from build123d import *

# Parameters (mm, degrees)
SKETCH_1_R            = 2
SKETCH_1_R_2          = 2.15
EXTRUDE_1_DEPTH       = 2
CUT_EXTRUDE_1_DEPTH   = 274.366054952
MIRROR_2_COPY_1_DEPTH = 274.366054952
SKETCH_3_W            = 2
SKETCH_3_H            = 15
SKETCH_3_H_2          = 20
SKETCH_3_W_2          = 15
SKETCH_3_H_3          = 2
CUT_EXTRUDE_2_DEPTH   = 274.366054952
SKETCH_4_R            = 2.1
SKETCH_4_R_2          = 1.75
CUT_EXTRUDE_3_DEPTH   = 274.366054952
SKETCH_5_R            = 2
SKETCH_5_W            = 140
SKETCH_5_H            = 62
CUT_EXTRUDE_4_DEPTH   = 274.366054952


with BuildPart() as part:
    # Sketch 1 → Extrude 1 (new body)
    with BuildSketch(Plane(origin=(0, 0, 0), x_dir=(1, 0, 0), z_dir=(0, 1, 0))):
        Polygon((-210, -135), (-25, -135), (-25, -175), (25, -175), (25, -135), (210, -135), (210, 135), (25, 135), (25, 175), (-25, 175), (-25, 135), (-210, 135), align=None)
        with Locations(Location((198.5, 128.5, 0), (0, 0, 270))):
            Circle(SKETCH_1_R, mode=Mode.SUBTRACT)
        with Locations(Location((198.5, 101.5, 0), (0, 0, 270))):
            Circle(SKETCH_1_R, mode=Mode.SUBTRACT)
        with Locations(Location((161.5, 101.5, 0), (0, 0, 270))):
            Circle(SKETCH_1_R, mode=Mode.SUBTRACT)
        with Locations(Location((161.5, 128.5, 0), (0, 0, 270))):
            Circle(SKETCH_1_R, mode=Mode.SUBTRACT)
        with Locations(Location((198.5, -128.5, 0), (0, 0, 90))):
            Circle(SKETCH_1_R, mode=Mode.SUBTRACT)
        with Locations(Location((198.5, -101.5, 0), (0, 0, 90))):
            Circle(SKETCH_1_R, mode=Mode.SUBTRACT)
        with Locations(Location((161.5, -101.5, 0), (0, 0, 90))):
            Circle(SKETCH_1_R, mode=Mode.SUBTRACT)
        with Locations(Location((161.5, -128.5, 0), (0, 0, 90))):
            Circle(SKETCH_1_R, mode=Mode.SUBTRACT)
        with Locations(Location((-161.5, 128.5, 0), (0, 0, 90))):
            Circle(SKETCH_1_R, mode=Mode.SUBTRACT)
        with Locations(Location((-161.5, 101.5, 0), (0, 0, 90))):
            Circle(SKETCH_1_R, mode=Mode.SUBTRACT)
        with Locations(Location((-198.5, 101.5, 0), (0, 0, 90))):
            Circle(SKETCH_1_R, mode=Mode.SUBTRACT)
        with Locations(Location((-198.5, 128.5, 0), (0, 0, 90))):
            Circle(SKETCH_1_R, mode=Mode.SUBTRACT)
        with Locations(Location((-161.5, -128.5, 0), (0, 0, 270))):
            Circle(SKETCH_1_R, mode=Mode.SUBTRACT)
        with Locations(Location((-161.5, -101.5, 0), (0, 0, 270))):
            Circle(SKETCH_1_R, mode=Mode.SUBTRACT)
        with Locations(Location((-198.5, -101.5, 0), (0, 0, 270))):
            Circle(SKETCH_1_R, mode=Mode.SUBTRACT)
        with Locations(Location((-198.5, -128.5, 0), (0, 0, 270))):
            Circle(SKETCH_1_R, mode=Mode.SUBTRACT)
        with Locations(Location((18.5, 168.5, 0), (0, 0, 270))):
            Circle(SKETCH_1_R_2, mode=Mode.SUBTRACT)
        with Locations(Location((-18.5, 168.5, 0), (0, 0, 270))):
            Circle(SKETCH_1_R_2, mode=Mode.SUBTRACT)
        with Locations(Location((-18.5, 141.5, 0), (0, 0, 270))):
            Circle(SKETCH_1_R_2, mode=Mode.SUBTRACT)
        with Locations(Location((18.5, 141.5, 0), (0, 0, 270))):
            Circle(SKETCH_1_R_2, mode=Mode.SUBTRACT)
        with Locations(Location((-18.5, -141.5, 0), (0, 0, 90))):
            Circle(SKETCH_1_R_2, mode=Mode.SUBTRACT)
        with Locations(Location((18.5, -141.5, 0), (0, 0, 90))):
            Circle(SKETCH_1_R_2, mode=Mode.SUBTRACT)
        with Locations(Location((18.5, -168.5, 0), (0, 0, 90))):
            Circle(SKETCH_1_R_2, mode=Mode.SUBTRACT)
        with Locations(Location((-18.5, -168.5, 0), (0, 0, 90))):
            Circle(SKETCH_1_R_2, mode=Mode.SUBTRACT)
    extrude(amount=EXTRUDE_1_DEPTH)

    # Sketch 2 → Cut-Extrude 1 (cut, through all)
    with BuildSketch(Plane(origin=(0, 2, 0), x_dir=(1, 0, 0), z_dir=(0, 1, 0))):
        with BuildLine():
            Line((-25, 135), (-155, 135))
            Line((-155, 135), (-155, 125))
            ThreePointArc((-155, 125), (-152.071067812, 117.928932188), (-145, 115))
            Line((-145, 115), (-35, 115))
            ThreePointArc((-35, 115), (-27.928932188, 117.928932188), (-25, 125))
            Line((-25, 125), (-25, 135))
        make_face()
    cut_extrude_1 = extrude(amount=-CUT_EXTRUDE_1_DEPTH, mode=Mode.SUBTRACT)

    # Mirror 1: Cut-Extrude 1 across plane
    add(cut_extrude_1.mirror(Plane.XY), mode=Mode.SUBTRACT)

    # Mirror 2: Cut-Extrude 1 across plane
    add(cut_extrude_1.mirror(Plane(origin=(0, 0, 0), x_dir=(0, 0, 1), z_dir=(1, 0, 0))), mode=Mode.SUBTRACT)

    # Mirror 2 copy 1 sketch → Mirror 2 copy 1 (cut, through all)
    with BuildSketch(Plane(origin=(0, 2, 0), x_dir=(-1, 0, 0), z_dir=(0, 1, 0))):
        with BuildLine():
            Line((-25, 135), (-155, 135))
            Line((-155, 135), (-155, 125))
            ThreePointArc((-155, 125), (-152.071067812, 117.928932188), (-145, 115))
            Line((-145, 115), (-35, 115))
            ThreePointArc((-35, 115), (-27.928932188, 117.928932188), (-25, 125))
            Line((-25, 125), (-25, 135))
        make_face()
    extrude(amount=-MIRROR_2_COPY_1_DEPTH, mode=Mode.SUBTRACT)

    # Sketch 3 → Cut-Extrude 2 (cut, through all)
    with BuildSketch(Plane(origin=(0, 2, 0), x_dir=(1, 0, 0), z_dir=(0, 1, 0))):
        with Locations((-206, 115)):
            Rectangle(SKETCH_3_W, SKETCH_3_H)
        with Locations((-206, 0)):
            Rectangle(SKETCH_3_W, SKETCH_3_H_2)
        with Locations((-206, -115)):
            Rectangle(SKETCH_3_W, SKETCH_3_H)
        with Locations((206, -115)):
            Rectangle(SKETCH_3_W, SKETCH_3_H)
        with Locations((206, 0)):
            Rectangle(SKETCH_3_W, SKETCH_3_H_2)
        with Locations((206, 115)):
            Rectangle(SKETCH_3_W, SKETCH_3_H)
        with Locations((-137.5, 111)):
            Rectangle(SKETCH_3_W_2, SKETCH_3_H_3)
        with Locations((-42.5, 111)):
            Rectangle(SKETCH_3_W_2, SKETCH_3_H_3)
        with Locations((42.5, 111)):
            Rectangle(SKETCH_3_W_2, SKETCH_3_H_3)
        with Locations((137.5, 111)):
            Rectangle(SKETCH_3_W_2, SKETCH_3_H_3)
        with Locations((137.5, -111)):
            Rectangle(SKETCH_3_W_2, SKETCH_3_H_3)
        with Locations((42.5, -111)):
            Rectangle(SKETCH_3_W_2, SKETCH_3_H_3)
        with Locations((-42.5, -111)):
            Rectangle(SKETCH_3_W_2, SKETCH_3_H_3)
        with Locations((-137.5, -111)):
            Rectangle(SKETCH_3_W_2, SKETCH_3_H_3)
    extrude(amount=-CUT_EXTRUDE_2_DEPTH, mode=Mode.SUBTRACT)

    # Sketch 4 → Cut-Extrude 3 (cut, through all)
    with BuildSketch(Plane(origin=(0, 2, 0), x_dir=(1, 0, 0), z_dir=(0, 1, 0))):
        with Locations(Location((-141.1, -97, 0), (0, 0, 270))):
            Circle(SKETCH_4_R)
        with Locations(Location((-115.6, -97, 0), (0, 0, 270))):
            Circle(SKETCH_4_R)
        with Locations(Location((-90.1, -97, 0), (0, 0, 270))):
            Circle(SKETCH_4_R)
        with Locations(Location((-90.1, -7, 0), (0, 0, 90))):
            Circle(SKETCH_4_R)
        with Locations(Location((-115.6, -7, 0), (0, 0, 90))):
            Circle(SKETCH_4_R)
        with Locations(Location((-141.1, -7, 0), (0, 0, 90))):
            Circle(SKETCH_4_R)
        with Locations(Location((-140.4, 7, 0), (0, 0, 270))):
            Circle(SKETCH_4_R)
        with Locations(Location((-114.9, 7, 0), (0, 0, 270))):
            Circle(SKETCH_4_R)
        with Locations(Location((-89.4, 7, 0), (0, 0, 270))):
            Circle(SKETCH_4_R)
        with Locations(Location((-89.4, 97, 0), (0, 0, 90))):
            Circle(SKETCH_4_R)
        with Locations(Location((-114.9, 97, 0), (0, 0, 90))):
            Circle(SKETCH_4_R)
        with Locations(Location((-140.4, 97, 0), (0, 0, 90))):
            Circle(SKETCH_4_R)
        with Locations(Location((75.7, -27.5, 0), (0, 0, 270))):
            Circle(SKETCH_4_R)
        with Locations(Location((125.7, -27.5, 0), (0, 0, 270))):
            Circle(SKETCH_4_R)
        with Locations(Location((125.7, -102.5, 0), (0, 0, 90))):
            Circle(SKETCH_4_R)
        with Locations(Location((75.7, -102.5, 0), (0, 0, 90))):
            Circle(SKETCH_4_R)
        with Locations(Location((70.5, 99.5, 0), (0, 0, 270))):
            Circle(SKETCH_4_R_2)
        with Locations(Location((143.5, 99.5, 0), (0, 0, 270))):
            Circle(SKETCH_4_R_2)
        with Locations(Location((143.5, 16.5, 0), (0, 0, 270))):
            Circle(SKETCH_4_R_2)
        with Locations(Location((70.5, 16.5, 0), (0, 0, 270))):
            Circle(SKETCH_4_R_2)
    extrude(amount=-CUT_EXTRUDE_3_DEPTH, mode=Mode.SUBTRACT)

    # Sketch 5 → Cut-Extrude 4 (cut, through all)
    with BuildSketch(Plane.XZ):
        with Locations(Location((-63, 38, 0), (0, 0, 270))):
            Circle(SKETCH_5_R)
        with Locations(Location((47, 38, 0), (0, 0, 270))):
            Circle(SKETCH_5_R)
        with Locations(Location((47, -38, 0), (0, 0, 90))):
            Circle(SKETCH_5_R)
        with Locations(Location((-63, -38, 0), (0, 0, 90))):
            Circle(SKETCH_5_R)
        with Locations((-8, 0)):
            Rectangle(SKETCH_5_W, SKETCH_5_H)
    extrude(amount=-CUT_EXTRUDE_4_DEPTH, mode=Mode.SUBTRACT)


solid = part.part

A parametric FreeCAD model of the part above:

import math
import FreeCAD as App
import Part
import Sketcher
from FreeCAD import Vector

doc = App.newDocument("Part")
body = doc.addObject("PartDesign::Body", "Body")

# Sketch on XZ plane
sketch1 = body.newObject("Sketcher::SketchObject", "Sketch")
sketch1.AttachmentSupport = (doc.getObject("XZ_Plane"), [""])
sketch1.MapMode = "FlatFace"
sketch1.addGeometry(Part.LineSegment(Vector(-210, 135, 0), Vector(-25, 135, 0)), False)
sketch1.addGeometry(Part.LineSegment(Vector(-25, 135, 0), Vector(-25, 175, 0)), False)
sketch1.addGeometry(Part.LineSegment(Vector(-25, 175, 0), Vector(25, 175, 0)), False)
sketch1.addGeometry(Part.LineSegment(Vector(25, 175, 0), Vector(25, 135, 0)), False)
sketch1.addGeometry(Part.LineSegment(Vector(25, 135, 0), Vector(210, 135, 0)), False)
sketch1.addGeometry(Part.LineSegment(Vector(210, 135, 0), Vector(210, -135, 0)), False)
sketch1.addGeometry(Part.LineSegment(Vector(210, -135, 0), Vector(25, -135, 0)), False)
sketch1.addGeometry(Part.LineSegment(Vector(25, -135, 0), Vector(25, -175, 0)), False)
sketch1.addGeometry(Part.LineSegment(Vector(25, -175, 0), Vector(-25, -175, 0)), False)
sketch1.addGeometry(Part.LineSegment(Vector(-25, -175, 0), Vector(-25, -135, 0)), False)
sketch1.addGeometry(Part.LineSegment(Vector(-25, -135, 0), Vector(-210, -135, 0)), False)
sketch1.addGeometry(Part.LineSegment(Vector(-210, -135, 0), Vector(-210, 135, 0)), False)
sketch1.addGeometry(Part.Circle(Vector(-198.5, 128.5, 0), Vector(0, 0, 1), 2), False)
sketch1.addGeometry(Part.Circle(Vector(-161.5, 128.5, 0), Vector(0, 0, 1), 2), False)
sketch1.addGeometry(Part.Circle(Vector(-198.5, 101.5, 0), Vector(0, 0, 1), 2), False)
sketch1.addGeometry(Part.Circle(Vector(-161.5, 101.5, 0), Vector(0, 0, 1), 2), False)
sketch1.addGeometry(Part.Circle(Vector(-18.5, 168.5, 0), Vector(0, 0, 1), 2.1), False)
sketch1.addGeometry(Part.Circle(Vector(-18.5, 141.5, 0), Vector(0, 0, 1), 2.1), False)
sketch1.addGeometry(Part.Circle(Vector(18.5, 168.5, 0), Vector(0, 0, 1), 2.1), False)
sketch1.addGeometry(Part.Circle(Vector(18.5, 141.5, 0), Vector(0, 0, 1), 2.1), False)
sketch1.addGeometry(Part.Circle(Vector(161.5, 128.5, 0), Vector(0, 0, 1), 2), False)
sketch1.addGeometry(Part.Circle(Vector(198.5, 128.5, 0), Vector(0, 0, 1), 2), False)
sketch1.addGeometry(Part.Circle(Vector(161.5, 101.5, 0), Vector(0, 0, 1), 2), False)
sketch1.addGeometry(Part.Circle(Vector(198.5, 101.5, 0), Vector(0, 0, 1), 2), False)
sketch1.addGeometry(Part.Circle(Vector(-198.5, -101.5, 0), Vector(0, 0, 1), 2), False)
sketch1.addGeometry(Part.Circle(Vector(-161.5, -101.5, 0), Vector(0, 0, 1), 2), False)
sketch1.addGeometry(Part.Circle(Vector(-198.5, -128.5, 0), Vector(0, 0, 1), 2), False)
sketch1.addGeometry(Part.Circle(Vector(-161.5, -128.5, 0), Vector(0, 0, 1), 2), False)
sketch1.addGeometry(Part.Circle(Vector(-18.5, -141.5, 0), Vector(0, 0, 1), 2.1), False)
sketch1.addGeometry(Part.Circle(Vector(-18.5, -168.5, 0), Vector(0, 0, 1), 2.1), False)
sketch1.addGeometry(Part.Circle(Vector(18.5, -141.5, 0), Vector(0, 0, 1), 2.1), False)
sketch1.addGeometry(Part.Circle(Vector(18.5, -168.5, 0), Vector(0, 0, 1), 2.1), False)
sketch1.addGeometry(Part.Circle(Vector(161.5, -101.5, 0), Vector(0, 0, 1), 2), False)
sketch1.addGeometry(Part.Circle(Vector(198.5, -101.5, 0), Vector(0, 0, 1), 2), False)
sketch1.addGeometry(Part.Circle(Vector(161.5, -128.5, 0), Vector(0, 0, 1), 2), False)
sketch1.addGeometry(Part.Circle(Vector(198.5, -128.5, 0), Vector(0, 0, 1), 2), False)
sketch1.addConstraint(Sketcher.Constraint("Coincident", 0, 2, 1, 1))
sketch1.addConstraint(Sketcher.Constraint("Coincident", 1, 2, 2, 1))
sketch1.addConstraint(Sketcher.Constraint("Coincident", 2, 2, 3, 1))
sketch1.addConstraint(Sketcher.Constraint("Coincident", 3, 2, 4, 1))
sketch1.addConstraint(Sketcher.Constraint("Coincident", 4, 2, 5, 1))
sketch1.addConstraint(Sketcher.Constraint("Coincident", 5, 2, 6, 1))
sketch1.addConstraint(Sketcher.Constraint("Coincident", 6, 2, 7, 1))
sketch1.addConstraint(Sketcher.Constraint("Coincident", 7, 2, 8, 1))
sketch1.addConstraint(Sketcher.Constraint("Coincident", 8, 2, 9, 1))
sketch1.addConstraint(Sketcher.Constraint("Coincident", 9, 2, 10, 1))
sketch1.addConstraint(Sketcher.Constraint("Coincident", 10, 2, 11, 1))
sketch1.addConstraint(Sketcher.Constraint("Coincident", 11, 2, 0, 1))
sketch1.addConstraint(Sketcher.Constraint("Horizontal", 0))
sketch1.addConstraint(Sketcher.Constraint("Vertical", 1))
sketch1.addConstraint(Sketcher.Constraint("Horizontal", 2))
sketch1.addConstraint(Sketcher.Constraint("Vertical", 3))
sketch1.addConstraint(Sketcher.Constraint("Horizontal", 4))
sketch1.addConstraint(Sketcher.Constraint("Vertical", 5))
sketch1.addConstraint(Sketcher.Constraint("Horizontal", 6))
sketch1.addConstraint(Sketcher.Constraint("Vertical", 7))
sketch1.addConstraint(Sketcher.Constraint("Horizontal", 8))
sketch1.addConstraint(Sketcher.Constraint("Vertical", 9))
sketch1.addConstraint(Sketcher.Constraint("Horizontal", 10))
sketch1.addConstraint(Sketcher.Constraint("Vertical", 11))
sketch1.addConstraint(Sketcher.Constraint("Equal", 12, 13))
sketch1.addConstraint(Sketcher.Constraint("Equal", 13, 14))
sketch1.addConstraint(Sketcher.Constraint("Equal", 14, 15))
sketch1.addConstraint(Sketcher.Constraint("Equal", 16, 17))
sketch1.addConstraint(Sketcher.Constraint("Equal", 17, 18))
sketch1.addConstraint(Sketcher.Constraint("Equal", 18, 19))
sketch1.addConstraint(Sketcher.Constraint("Equal", 15, 20))
sketch1.addConstraint(Sketcher.Constraint("Equal", 20, 21))
sketch1.addConstraint(Sketcher.Constraint("Equal", 21, 22))
sketch1.addConstraint(Sketcher.Constraint("Equal", 22, 23))
sketch1.addConstraint(Sketcher.Constraint("Equal", 23, 24))
sketch1.addConstraint(Sketcher.Constraint("Equal", 24, 25))
sketch1.addConstraint(Sketcher.Constraint("Equal", 25, 26))
sketch1.addConstraint(Sketcher.Constraint("Equal", 26, 27))
sketch1.addConstraint(Sketcher.Constraint("Equal", 19, 28))
sketch1.addConstraint(Sketcher.Constraint("Equal", 28, 29))
sketch1.addConstraint(Sketcher.Constraint("Equal", 29, 30))
sketch1.addConstraint(Sketcher.Constraint("Equal", 30, 31))
sketch1.addConstraint(Sketcher.Constraint("Equal", 27, 32))
sketch1.addConstraint(Sketcher.Constraint("Equal", 32, 33))
sketch1.addConstraint(Sketcher.Constraint("Equal", 33, 34))
sketch1.addConstraint(Sketcher.Constraint("Equal", 34, 35))
sketch1.addConstraint(Sketcher.Constraint("Symmetric", 23, 3, 24, 3, -1, 1))
sketch1.addConstraint(Sketcher.Constraint("Symmetric", 22, 3, 25, 3, -1, 1))
sketch1.addConstraint(Sketcher.Constraint("Symmetric", 21, 3, 26, 3, -1, 1))
sketch1.addConstraint(Sketcher.Constraint("Symmetric", 20, 3, 27, 3, -1, 1))
sketch1.addConstraint(Sketcher.Constraint("Symmetric", 19, 3, 28, 3, -1, 1))
sketch1.addConstraint(Sketcher.Constraint("Symmetric", 18, 3, 29, 3, -1, 1))
sketch1.addConstraint(Sketcher.Constraint("Symmetric", 17, 3, 30, 3, -1, 1))
sketch1.addConstraint(Sketcher.Constraint("Symmetric", 16, 3, 31, 3, -1, 1))
sketch1.addConstraint(Sketcher.Constraint("Symmetric", 15, 3, 32, 3, -1, 1))
sketch1.addConstraint(Sketcher.Constraint("Symmetric", 14, 3, 33, 3, -1, 1))
sketch1.addConstraint(Sketcher.Constraint("Symmetric", 13, 3, 34, 3, -1, 1))
sketch1.addConstraint(Sketcher.Constraint("Symmetric", 12, 3, 35, 3, -1, 1))
sketch1.addConstraint(Sketcher.Constraint("Symmetric", 0, 2, 6, 2, -1, 1))
sketch1.addConstraint(Sketcher.Constraint("Symmetric", 2, 2, 8, 2, -1, 1))
sketch1.addConstraint(Sketcher.Constraint("Symmetric", 4, 2, 10, 2, -1, 1))
sketch1.addConstraint(Sketcher.Constraint("Symmetric", 16, 3, 18, 3, -2))
sketch1.addConstraint(Sketcher.Constraint("Symmetric", 17, 3, 19, 3, -2))
sketch1.addConstraint(Sketcher.Constraint("Symmetric", 13, 3, 20, 3, -2))
sketch1.addConstraint(Sketcher.Constraint("Symmetric", 12, 3, 21, 3, -2))
sketch1.addConstraint(Sketcher.Constraint("Symmetric", 15, 3, 22, 3, -2))
sketch1.addConstraint(Sketcher.Constraint("Symmetric", 14, 3, 23, 3, -2))
sketch1.addConstraint(Sketcher.Constraint("Symmetric", 0, 2, 3, 2, -2))
sketch1.addConstraint(Sketcher.Constraint("Horizontal", 12, 3, 13, 3))
sketch1.addConstraint(Sketcher.Constraint("Horizontal", 14, 3, 15, 3))
sketch1.addConstraint(Sketcher.Constraint("Vertical", 12, 3, 14, 3))
sketch1.addConstraint(Sketcher.Constraint("Vertical", 13, 3, 15, 3))
sketch1.addConstraint(Sketcher.Constraint("Vertical", 16, 3, 17, 3))
sketch1.addConstraint(Sketcher.Constraint("Diameter", 12, 4.0))
sketch1.addConstraint(Sketcher.Constraint("Diameter", 16, 4.3))
sketch1.addConstraint(Sketcher.Constraint("DistanceX", 0, 1, 0, 2, 185.0))
sketch1.addConstraint(Sketcher.Constraint("DistanceX", 2, 1, 2, 2, 50.0))
sketch1.addConstraint(Sketcher.Constraint("DistanceY", 1, 1, 1, 2, 40.0))
sketch1.addConstraint(Sketcher.Constraint("DistanceY", 5, 2, 5, 1, 270.0))
sketch1.addConstraint(Sketcher.Constraint("DistanceX", 12, 3, 13, 3, 37.0))
sketch1.addConstraint(Sketcher.Constraint("DistanceY", 14, 3, 12, 3, 27.0))
sketch1.addConstraint(Sketcher.Constraint("DistanceX", 13, 3, 16, 3, 143.0))
sketch1.addConstraint(Sketcher.Constraint("DistanceY", 13, 3, 16, 3, 40.0))
sketch1.addConstraint(Sketcher.Constraint("DistanceY", 17, 3, 16, 3, 27.0))
sketch1.addConstraint(Sketcher.Constraint("DistanceX", 16, 3, 18, 3, 37.0))
sketch1.addConstraint(Sketcher.Constraint("DistanceY", 24, 3, 14, 3, 203.0))
pad1 = body.newObject("PartDesign::Pad", "Pad")
pad1.Profile = sketch1
pad1.Length = 2
pad1.Reversed = True

# Sketch on XZ plane
sketch2 = body.newObject("Sketcher::SketchObject", "Sketch001")
sketch2.AttachmentSupport = (doc.getObject("XZ_Plane"), [""])
sketch2.MapMode = "FlatFace"
sketch2.AttachmentOffset = App.Placement(Vector(0, 0, -2), App.Rotation())
sketch2.addGeometry(Part.LineSegment(Vector(-25, -135, 0), Vector(-155, -135, 0)), False)
sketch2.addGeometry(Part.LineSegment(Vector(-155, -135, 0), Vector(-155, -125, 0)), False)
sketch2.addGeometry(Part.ArcOfCircle(Part.Circle(Vector(-145, -125, 0), Vector(0, 0, 1), 10), math.radians(90), math.radians(180)), False)
sketch2.addGeometry(Part.LineSegment(Vector(-145, -115, 0), Vector(-35, -115, 0)), False)
sketch2.addGeometry(Part.ArcOfCircle(Part.Circle(Vector(-35, -125, 0), Vector(0, 0, 1), 10), math.radians(0), math.radians(90)), False)
sketch2.addGeometry(Part.LineSegment(Vector(-25, -125, 0), Vector(-25, -135, 0)), False)
sketch2.addConstraint(Sketcher.Constraint("Coincident", 0, 2, 1, 1))
sketch2.addConstraint(Sketcher.Constraint("Tangent", 1, 2, 2, 2))
sketch2.addConstraint(Sketcher.Constraint("Tangent", 2, 1, 3, 1))
sketch2.addConstraint(Sketcher.Constraint("Tangent", 3, 2, 4, 2))
sketch2.addConstraint(Sketcher.Constraint("Tangent", 4, 1, 5, 1))
sketch2.addConstraint(Sketcher.Constraint("Coincident", 5, 2, 0, 1))
sketch2.addConstraint(Sketcher.Constraint("Horizontal", 0))
sketch2.addConstraint(Sketcher.Constraint("Vertical", 1))
sketch2.addConstraint(Sketcher.Constraint("Horizontal", 3))
sketch2.addConstraint(Sketcher.Constraint("Vertical", 5))
sketch2.addConstraint(Sketcher.Constraint("Equal", 2, 4))
sketch2.addConstraint(Sketcher.Constraint("Radius", 2, 10.0))
sketch2.addConstraint(Sketcher.Constraint("DistanceX", 0, 2, 0, 1, 130.0))
sketch2.addConstraint(Sketcher.Constraint("DistanceY", 1, 1, 1, 2, 10.0))
sketch2.addConstraint(Sketcher.Constraint("DistanceX", 2, 3, -1, 1, 145.0))
sketch2.addConstraint(Sketcher.Constraint("DistanceY", 2, 3, -1, 1, 125.0))
pocket1 = body.newObject("PartDesign::Pocket", "Pocket")
pocket1.Profile = sketch2
pocket1.Type = "ThroughAll"
pocket1.Reversed = True
doc.recompute()

mirrored = body.newObject("PartDesign::Mirrored", "Mirrored")
mirrored.Originals = [pocket1]
mirrored.MirrorPlane = (doc.getObject("XY_Plane"), [""])
body.Tip = mirrored
doc.recompute()

mirrored2 = body.newObject("PartDesign::Mirrored", "Mirrored001")
mirrored2.Originals = [pocket1]
mirrored2.MirrorPlane = (doc.getObject("YZ_Plane"), [""])
body.Tip = mirrored2

# Sketch on XZ plane
sketch3 = body.newObject("Sketcher::SketchObject", "Sketch002")
sketch3.AttachmentSupport = (doc.getObject("XZ_Plane"), [""])
sketch3.MapMode = "FlatFace"
sketch3.AttachmentOffset = App.Placement(Vector(0, 0, -2), App.Rotation())
sketch3.addGeometry(Part.LineSegment(Vector(25, 135, 0), Vector(155, 135, 0)), False)
sketch3.addGeometry(Part.LineSegment(Vector(155, 135, 0), Vector(155, 125, 0)), False)
sketch3.addGeometry(Part.ArcOfCircle(Part.Circle(Vector(145, 125, 0), Vector(0, 0, 1), 10), math.radians(-90), math.radians(0)), False)
sketch3.addGeometry(Part.LineSegment(Vector(145, 115, 0), Vector(35, 115, 0)), False)
sketch3.addGeometry(Part.ArcOfCircle(Part.Circle(Vector(35, 125, 0), Vector(0, 0, 1), 10), math.radians(180), math.radians(270)), False)
sketch3.addGeometry(Part.LineSegment(Vector(25, 125, 0), Vector(25, 135, 0)), False)
sketch3.addConstraint(Sketcher.Constraint("Coincident", 0, 2, 1, 1))
sketch3.addConstraint(Sketcher.Constraint("Tangent", 1, 2, 2, 2))
sketch3.addConstraint(Sketcher.Constraint("Tangent", 2, 1, 3, 1))
sketch3.addConstraint(Sketcher.Constraint("Tangent", 3, 2, 4, 2))
sketch3.addConstraint(Sketcher.Constraint("Tangent", 4, 1, 5, 1))
sketch3.addConstraint(Sketcher.Constraint("Coincident", 5, 2, 0, 1))
sketch3.addConstraint(Sketcher.Constraint("Horizontal", 0))
sketch3.addConstraint(Sketcher.Constraint("Vertical", 1))
sketch3.addConstraint(Sketcher.Constraint("Horizontal", 3))
sketch3.addConstraint(Sketcher.Constraint("Vertical", 5))
sketch3.addConstraint(Sketcher.Constraint("Equal", 2, 4))
sketch3.addConstraint(Sketcher.Constraint("Radius", 2, 10.0))
sketch3.addConstraint(Sketcher.Constraint("DistanceX", 0, 1, 0, 2, 130.0))
sketch3.addConstraint(Sketcher.Constraint("DistanceY", 1, 2, 1, 1, 10.0))
sketch3.addConstraint(Sketcher.Constraint("DistanceX", -1, 1, 2, 3, 145.0))
sketch3.addConstraint(Sketcher.Constraint("DistanceY", -1, 1, 2, 3, 125.0))
pocket2 = body.newObject("PartDesign::Pocket", "Pocket001")
pocket2.Profile = sketch3
pocket2.Type = "ThroughAll"
pocket2.Reversed = True

# Sketch on XZ plane
sketch4 = body.newObject("Sketcher::SketchObject", "Sketch003")
sketch4.AttachmentSupport = (doc.getObject("XZ_Plane"), [""])
sketch4.MapMode = "FlatFace"
sketch4.AttachmentOffset = App.Placement(Vector(0, 0, -2), App.Rotation())
sketch4.addGeometry(Part.LineSegment(Vector(-207, -122.5, 0), Vector(-207, -107.5, 0)), False)
sketch4.addGeometry(Part.LineSegment(Vector(-207, -107.5, 0), Vector(-205, -107.5, 0)), False)
sketch4.addGeometry(Part.LineSegment(Vector(-205, -107.5, 0), Vector(-205, -122.5, 0)), False)
sketch4.addGeometry(Part.LineSegment(Vector(-205, -122.5, 0), Vector(-207, -122.5, 0)), False)
sketch4.addGeometry(Part.LineSegment(Vector(-207, -10, 0), Vector(-207, 10, 0)), False)
sketch4.addGeometry(Part.LineSegment(Vector(-207, 10, 0), Vector(-205, 10, 0)), False)
sketch4.addGeometry(Part.LineSegment(Vector(-205, 10, 0), Vector(-205, -10, 0)), False)
sketch4.addGeometry(Part.LineSegment(Vector(-205, -10, 0), Vector(-207, -10, 0)), False)
sketch4.addGeometry(Part.LineSegment(Vector(-207, 107.5, 0), Vector(-207, 122.5, 0)), False)
sketch4.addGeometry(Part.LineSegment(Vector(-207, 122.5, 0), Vector(-205, 122.5, 0)), False)
sketch4.addGeometry(Part.LineSegment(Vector(-205, 122.5, 0), Vector(-205, 107.5, 0)), False)
sketch4.addGeometry(Part.LineSegment(Vector(-205, 107.5, 0), Vector(-207, 107.5, 0)), False)
sketch4.addGeometry(Part.LineSegment(Vector(205, 107.5, 0), Vector(205, 122.5, 0)), False)
sketch4.addGeometry(Part.LineSegment(Vector(205, 122.5, 0), Vector(207, 122.5, 0)), False)
sketch4.addGeometry(Part.LineSegment(Vector(207, 122.5, 0), Vector(207, 107.5, 0)), False)
sketch4.addGeometry(Part.LineSegment(Vector(207, 107.5, 0), Vector(205, 107.5, 0)), False)
sketch4.addGeometry(Part.LineSegment(Vector(205, -10, 0), Vector(205, 10, 0)), False)
sketch4.addGeometry(Part.LineSegment(Vector(205, 10, 0), Vector(207, 10, 0)), False)
sketch4.addGeometry(Part.LineSegment(Vector(207, 10, 0), Vector(207, -10, 0)), False)
sketch4.addGeometry(Part.LineSegment(Vector(207, -10, 0), Vector(205, -10, 0)), False)
sketch4.addGeometry(Part.LineSegment(Vector(205, -122.5, 0), Vector(205, -107.5, 0)), False)
sketch4.addGeometry(Part.LineSegment(Vector(205, -107.5, 0), Vector(207, -107.5, 0)), False)
sketch4.addGeometry(Part.LineSegment(Vector(207, -107.5, 0), Vector(207, -122.5, 0)), False)
sketch4.addGeometry(Part.LineSegment(Vector(207, -122.5, 0), Vector(205, -122.5, 0)), False)
sketch4.addGeometry(Part.LineSegment(Vector(-145, -112, 0), Vector(-145, -110, 0)), False)
sketch4.addGeometry(Part.LineSegment(Vector(-145, -110, 0), Vector(-130, -110, 0)), False)
sketch4.addGeometry(Part.LineSegment(Vector(-130, -110, 0), Vector(-130, -112, 0)), False)
sketch4.addGeometry(Part.LineSegment(Vector(-130, -112, 0), Vector(-145, -112, 0)), False)
sketch4.addGeometry(Part.LineSegment(Vector(-50, -112, 0), Vector(-50, -110, 0)), False)
sketch4.addGeometry(Part.LineSegment(Vector(-50, -110, 0), Vector(-35, -110, 0)), False)
sketch4.addGeometry(Part.LineSegment(Vector(-35, -110, 0), Vector(-35, -112, 0)), False)
sketch4.addGeometry(Part.LineSegment(Vector(-35, -112, 0), Vector(-50, -112, 0)), False)
sketch4.addGeometry(Part.LineSegment(Vector(35, -112, 0), Vector(35, -110, 0)), False)
sketch4.addGeometry(Part.LineSegment(Vector(35, -110, 0), Vector(50, -110, 0)), False)
sketch4.addGeometry(Part.LineSegment(Vector(50, -110, 0), Vector(50, -112, 0)), False)
sketch4.addGeometry(Part.LineSegment(Vector(50, -112, 0), Vector(35, -112, 0)), False)
sketch4.addGeometry(Part.LineSegment(Vector(130, -112, 0), Vector(130, -110, 0)), False)
sketch4.addGeometry(Part.LineSegment(Vector(130, -110, 0), Vector(145, -110, 0)), False)
sketch4.addGeometry(Part.LineSegment(Vector(145, -110, 0), Vector(145, -112, 0)), False)
sketch4.addGeometry(Part.LineSegment(Vector(145, -112, 0), Vector(130, -112, 0)), False)
sketch4.addGeometry(Part.LineSegment(Vector(130, 110, 0), Vector(130, 112, 0)), False)
sketch4.addGeometry(Part.LineSegment(Vector(130, 112, 0), Vector(145, 112, 0)), False)
sketch4.addGeometry(Part.LineSegment(Vector(145, 112, 0), Vector(145, 110, 0)), False)
sketch4.addGeometry(Part.LineSegment(Vector(145, 110, 0), Vector(130, 110, 0)), False)
sketch4.addGeometry(Part.LineSegment(Vector(35, 110, 0), Vector(35, 112, 0)), False)
sketch4.addGeometry(Part.LineSegment(Vector(35, 112, 0), Vector(50, 112, 0)), False)
sketch4.addGeometry(Part.LineSegment(Vector(50, 112, 0), Vector(50, 110, 0)), False)
sketch4.addGeometry(Part.LineSegment(Vector(50, 110, 0), Vector(35, 110, 0)), False)
sketch4.addGeometry(Part.LineSegment(Vector(-50, 110, 0), Vector(-50, 112, 0)), False)
sketch4.addGeometry(Part.LineSegment(Vector(-50, 112, 0), Vector(-35, 112, 0)), False)
sketch4.addGeometry(Part.LineSegment(Vector(-35, 112, 0), Vector(-35, 110, 0)), False)
sketch4.addGeometry(Part.LineSegment(Vector(-35, 110, 0), Vector(-50, 110, 0)), False)
sketch4.addGeometry(Part.LineSegment(Vector(-145, 110, 0), Vector(-145, 112, 0)), False)
sketch4.addGeometry(Part.LineSegment(Vector(-145, 112, 0), Vector(-130, 112, 0)), False)
sketch4.addGeometry(Part.LineSegment(Vector(-130, 112, 0), Vector(-130, 110, 0)), False)
sketch4.addGeometry(Part.LineSegment(Vector(-130, 110, 0), Vector(-145, 110, 0)), False)
sketch4.addConstraint(Sketcher.Constraint("Coincident", 0, 2, 1, 1))
sketch4.addConstraint(Sketcher.Constraint("Coincident", 1, 2, 2, 1))
sketch4.addConstraint(Sketcher.Constraint("Coincident", 2, 2, 3, 1))
sketch4.addConstraint(Sketcher.Constraint("Coincident", 3, 2, 0, 1))
sketch4.addConstraint(Sketcher.Constraint("Coincident", 4, 2, 5, 1))
sketch4.addConstraint(Sketcher.Constraint("Coincident", 5, 2, 6, 1))
sketch4.addConstraint(Sketcher.Constraint("Coincident", 6, 2, 7, 1))
sketch4.addConstraint(Sketcher.Constraint("Coincident", 7, 2, 4, 1))
sketch4.addConstraint(Sketcher.Constraint("Coincident", 8, 2, 9, 1))
sketch4.addConstraint(Sketcher.Constraint("Coincident", 9, 2, 10, 1))
sketch4.addConstraint(Sketcher.Constraint("Coincident", 10, 2, 11, 1))
sketch4.addConstraint(Sketcher.Constraint("Coincident", 11, 2, 8, 1))
sketch4.addConstraint(Sketcher.Constraint("Coincident", 12, 2, 13, 1))
sketch4.addConstraint(Sketcher.Constraint("Coincident", 13, 2, 14, 1))
sketch4.addConstraint(Sketcher.Constraint("Coincident", 14, 2, 15, 1))
sketch4.addConstraint(Sketcher.Constraint("Coincident", 15, 2, 12, 1))
sketch4.addConstraint(Sketcher.Constraint("Coincident", 16, 2, 17, 1))
sketch4.addConstraint(Sketcher.Constraint("Coincident", 17, 2, 18, 1))
sketch4.addConstraint(Sketcher.Constraint("Coincident", 18, 2, 19, 1))
sketch4.addConstraint(Sketcher.Constraint("Coincident", 19, 2, 16, 1))
sketch4.addConstraint(Sketcher.Constraint("Coincident", 20, 2, 21, 1))
sketch4.addConstraint(Sketcher.Constraint("Coincident", 21, 2, 22, 1))
sketch4.addConstraint(Sketcher.Constraint("Coincident", 22, 2, 23, 1))
sketch4.addConstraint(Sketcher.Constraint("Coincident", 23, 2, 20, 1))
sketch4.addConstraint(Sketcher.Constraint("Coincident", 24, 2, 25, 1))
sketch4.addConstraint(Sketcher.Constraint("Coincident", 25, 2, 26, 1))
sketch4.addConstraint(Sketcher.Constraint("Coincident", 26, 2, 27, 1))
sketch4.addConstraint(Sketcher.Constraint("Coincident", 27, 2, 24, 1))
sketch4.addConstraint(Sketcher.Constraint("Coincident", 28, 2, 29, 1))
sketch4.addConstraint(Sketcher.Constraint("Coincident", 29, 2, 30, 1))
sketch4.addConstraint(Sketcher.Constraint("Coincident", 30, 2, 31, 1))
sketch4.addConstraint(Sketcher.Constraint("Coincident", 31, 2, 28, 1))
sketch4.addConstraint(Sketcher.Constraint("Coincident", 32, 2, 33, 1))
sketch4.addConstraint(Sketcher.Constraint("Coincident", 33, 2, 34, 1))
sketch4.addConstraint(Sketcher.Constraint("Coincident", 34, 2, 35, 1))
sketch4.addConstraint(Sketcher.Constraint("Coincident", 35, 2, 32, 1))
sketch4.addConstraint(Sketcher.Constraint("Coincident", 36, 2, 37, 1))
sketch4.addConstraint(Sketcher.Constraint("Coincident", 37, 2, 38, 1))
sketch4.addConstraint(Sketcher.Constraint("Coincident", 38, 2, 39, 1))
sketch4.addConstraint(Sketcher.Constraint("Coincident", 39, 2, 36, 1))
sketch4.addConstraint(Sketcher.Constraint("Coincident", 40, 2, 41, 1))
sketch4.addConstraint(Sketcher.Constraint("Coincident", 41, 2, 42, 1))
sketch4.addConstraint(Sketcher.Constraint("Coincident", 42, 2, 43, 1))
sketch4.addConstraint(Sketcher.Constraint("Coincident", 43, 2, 40, 1))
sketch4.addConstraint(Sketcher.Constraint("Coincident", 44, 2, 45, 1))
sketch4.addConstraint(Sketcher.Constraint("Coincident", 45, 2, 46, 1))
sketch4.addConstraint(Sketcher.Constraint("Coincident", 46, 2, 47, 1))
sketch4.addConstraint(Sketcher.Constraint("Coincident", 47, 2, 44, 1))
sketch4.addConstraint(Sketcher.Constraint("Coincident", 48, 2, 49, 1))
sketch4.addConstraint(Sketcher.Constraint("Coincident", 49, 2, 50, 1))
sketch4.addConstraint(Sketcher.Constraint("Coincident", 50, 2, 51, 1))
sketch4.addConstraint(Sketcher.Constraint("Coincident", 51, 2, 48, 1))
sketch4.addConstraint(Sketcher.Constraint("Coincident", 52, 2, 53, 1))
sketch4.addConstraint(Sketcher.Constraint("Coincident", 53, 2, 54, 1))
sketch4.addConstraint(Sketcher.Constraint("Coincident", 54, 2, 55, 1))
sketch4.addConstraint(Sketcher.Constraint("Coincident", 55, 2, 52, 1))
sketch4.addConstraint(Sketcher.Constraint("Vertical", 0))
sketch4.addConstraint(Sketcher.Constraint("Horizontal", 1))
sketch4.addConstraint(Sketcher.Constraint("Vertical", 2))
sketch4.addConstraint(Sketcher.Constraint("Horizontal", 3))
sketch4.addConstraint(Sketcher.Constraint("Vertical", 4))
sketch4.addConstraint(Sketcher.Constraint("Horizontal", 5))
sketch4.addConstraint(Sketcher.Constraint("Vertical", 6))
sketch4.addConstraint(Sketcher.Constraint("Horizontal", 7))
sketch4.addConstraint(Sketcher.Constraint("Vertical", 8))
sketch4.addConstraint(Sketcher.Constraint("Horizontal", 9))
sketch4.addConstraint(Sketcher.Constraint("Vertical", 10))
sketch4.addConstraint(Sketcher.Constraint("Horizontal", 11))
sketch4.addConstraint(Sketcher.Constraint("Vertical", 12))
sketch4.addConstraint(Sketcher.Constraint("Horizontal", 13))
sketch4.addConstraint(Sketcher.Constraint("Vertical", 14))
sketch4.addConstraint(Sketcher.Constraint("Horizontal", 15))
sketch4.addConstraint(Sketcher.Constraint("Vertical", 16))
sketch4.addConstraint(Sketcher.Constraint("Horizontal", 17))
sketch4.addConstraint(Sketcher.Constraint("Vertical", 18))
sketch4.addConstraint(Sketcher.Constraint("Horizontal", 19))
sketch4.addConstraint(Sketcher.Constraint("Vertical", 20))
sketch4.addConstraint(Sketcher.Constraint("Horizontal", 21))
sketch4.addConstraint(Sketcher.Constraint("Vertical", 22))
sketch4.addConstraint(Sketcher.Constraint("Horizontal", 23))
sketch4.addConstraint(Sketcher.Constraint("Vertical", 24))
sketch4.addConstraint(Sketcher.Constraint("Horizontal", 25))
sketch4.addConstraint(Sketcher.Constraint("Vertical", 26))
sketch4.addConstraint(Sketcher.Constraint("Horizontal", 27))
sketch4.addConstraint(Sketcher.Constraint("Vertical", 28))
sketch4.addConstraint(Sketcher.Constraint("Horizontal", 29))
sketch4.addConstraint(Sketcher.Constraint("Vertical", 30))
sketch4.addConstraint(Sketcher.Constraint("Horizontal", 31))
sketch4.addConstraint(Sketcher.Constraint("Vertical", 32))
sketch4.addConstraint(Sketcher.Constraint("Horizontal", 33))
sketch4.addConstraint(Sketcher.Constraint("Vertical", 34))
sketch4.addConstraint(Sketcher.Constraint("Horizontal", 35))
sketch4.addConstraint(Sketcher.Constraint("Vertical", 36))
sketch4.addConstraint(Sketcher.Constraint("Horizontal", 37))
sketch4.addConstraint(Sketcher.Constraint("Vertical", 38))
sketch4.addConstraint(Sketcher.Constraint("Horizontal", 39))
sketch4.addConstraint(Sketcher.Constraint("Vertical", 40))
sketch4.addConstraint(Sketcher.Constraint("Horizontal", 41))
sketch4.addConstraint(Sketcher.Constraint("Vertical", 42))
sketch4.addConstraint(Sketcher.Constraint("Horizontal", 43))
sketch4.addConstraint(Sketcher.Constraint("Vertical", 44))
sketch4.addConstraint(Sketcher.Constraint("Horizontal", 45))
sketch4.addConstraint(Sketcher.Constraint("Vertical", 46))
sketch4.addConstraint(Sketcher.Constraint("Horizontal", 47))
sketch4.addConstraint(Sketcher.Constraint("Vertical", 48))
sketch4.addConstraint(Sketcher.Constraint("Horizontal", 49))
sketch4.addConstraint(Sketcher.Constraint("Vertical", 50))
sketch4.addConstraint(Sketcher.Constraint("Horizontal", 51))
sketch4.addConstraint(Sketcher.Constraint("Vertical", 52))
sketch4.addConstraint(Sketcher.Constraint("Horizontal", 53))
sketch4.addConstraint(Sketcher.Constraint("Vertical", 54))
sketch4.addConstraint(Sketcher.Constraint("Horizontal", 55))
sketch4.addConstraint(Sketcher.Constraint("Symmetric", 2, 2, 12, 2, -1, 1))
sketch4.addConstraint(Sketcher.Constraint("Symmetric", 0, 2, 14, 2, -1, 1))
sketch4.addConstraint(Sketcher.Constraint("Symmetric", 6, 2, 16, 2, -1, 1))
sketch4.addConstraint(Sketcher.Constraint("Symmetric", 4, 2, 18, 2, -1, 1))
sketch4.addConstraint(Sketcher.Constraint("Symmetric", 10, 2, 20, 2, -1, 1))
sketch4.addConstraint(Sketcher.Constraint("Symmetric", 8, 2, 22, 2, -1, 1))
sketch4.addConstraint(Sketcher.Constraint("Symmetric", 26, 2, 40, 2, -1, 1))
sketch4.addConstraint(Sketcher.Constraint("Symmetric", 24, 2, 42, 2, -1, 1))
sketch4.addConstraint(Sketcher.Constraint("Symmetric", 30, 2, 44, 2, -1, 1))
sketch4.addConstraint(Sketcher.Constraint("Symmetric", 28, 2, 46, 2, -1, 1))
sketch4.addConstraint(Sketcher.Constraint("Symmetric", 34, 2, 48, 2, -1, 1))
sketch4.addConstraint(Sketcher.Constraint("Symmetric", 32, 2, 50, 2, -1, 1))
sketch4.addConstraint(Sketcher.Constraint("Symmetric", 38, 2, 52, 2, -1, 1))
sketch4.addConstraint(Sketcher.Constraint("Symmetric", 36, 2, 54, 2, -1, 1))
sketch4.addConstraint(Sketcher.Constraint("Symmetric", 9, 2, 12, 2, -2))
sketch4.addConstraint(Sketcher.Constraint("Symmetric", 11, 2, 14, 2, -2))
sketch4.addConstraint(Sketcher.Constraint("Symmetric", 29, 2, 32, 2, -2))
sketch4.addConstraint(Sketcher.Constraint("Symmetric", 31, 2, 34, 2, -2))
sketch4.addConstraint(Sketcher.Constraint("Symmetric", 25, 2, 36, 2, -2))
sketch4.addConstraint(Sketcher.Constraint("Symmetric", 27, 2, 38, 2, -2))
sketch4.addConstraint(Sketcher.Constraint("Horizontal", 5, 2, 16, 2))
sketch4.addConstraint(Sketcher.Constraint("Horizontal", 25, 2, 28, 2))
sketch4.addConstraint(Sketcher.Constraint("Horizontal", 27, 2, 30, 2))
sketch4.addConstraint(Sketcher.Constraint("Vertical", 3, 2, 4, 2))
sketch4.addConstraint(Sketcher.Constraint("Vertical", 2, 2, 5, 2))
sketch4.addConstraint(Sketcher.Constraint("Equal", 27, 29))
sketch4.addConstraint(Sketcher.Constraint("Equal", 55, 0))
sketch4.addConstraint(Sketcher.Constraint("Equal", 23, 24))
sketch4.addConstraint(Sketcher.Constraint("DistanceX", 1, 1, 1, 2, 2.0))
sketch4.addConstraint(Sketcher.Constraint("DistanceX", 25, 1, 25, 2, 15.0))
sketch4.addConstraint(Sketcher.Constraint("DistanceY", 4, 1, 4, 2, 20.0))
sketch4.addConstraint(Sketcher.Constraint("DistanceX", 0, 2, -1, 1, 207.0))
sketch4.addConstraint(Sketcher.Constraint("DistanceX", 24, 2, -1, 1, 145.0))
sketch4.addConstraint(Sketcher.Constraint("DistanceY", 24, 2, -1, 1, 110.0))
sketch4.addConstraint(Sketcher.Constraint("DistanceX", 28, 2, -1, 1, 50.0))
sketch4.addConstraint(Sketcher.Constraint("DistanceY", 0, 2, 8, 2, 230.0))
pocket3 = body.newObject("PartDesign::Pocket", "Pocket002")
pocket3.Profile = sketch4
pocket3.Type = "ThroughAll"
pocket3.Reversed = True

# Sketch on XZ plane
sketch5 = body.newObject("Sketcher::SketchObject", "Sketch004")
sketch5.AttachmentSupport = (doc.getObject("XZ_Plane"), [""])
sketch5.MapMode = "FlatFace"
sketch5.AttachmentOffset = App.Placement(Vector(0, 0, -2), App.Rotation())
sketch5.addGeometry(Part.Circle(Vector(-141.1, 97, 0), Vector(0, 0, 1), 2.1), False)
sketch5.addGeometry(Part.Circle(Vector(-115.6, 97, 0), Vector(0, 0, 1), 2.1), False)
sketch5.addGeometry(Part.Circle(Vector(-90.1, 97, 0), Vector(0, 0, 1), 2.1), False)
sketch5.addGeometry(Part.Circle(Vector(-90.1, 7, 0), Vector(0, 0, 1), 2.1), False)
sketch5.addGeometry(Part.Circle(Vector(-115.6, 7, 0), Vector(0, 0, 1), 2.1), False)
sketch5.addGeometry(Part.Circle(Vector(-141.1, 7, 0), Vector(0, 0, 1), 2.1), False)
sketch5.addGeometry(Part.Circle(Vector(-140.4, -7, 0), Vector(0, 0, 1), 2.1), False)
sketch5.addGeometry(Part.Circle(Vector(-114.9, -7, 0), Vector(0, 0, 1), 2.1), False)
sketch5.addGeometry(Part.Circle(Vector(-89.4, -7, 0), Vector(0, 0, 1), 2.1), False)
sketch5.addGeometry(Part.Circle(Vector(-89.4, -97, 0), Vector(0, 0, 1), 2.1), False)
sketch5.addGeometry(Part.Circle(Vector(-114.9, -97, 0), Vector(0, 0, 1), 2.1), False)
sketch5.addGeometry(Part.Circle(Vector(-140.4, -97, 0), Vector(0, 0, 1), 2.1), False)
sketch5.addGeometry(Part.Circle(Vector(75.7, 27.5, 0), Vector(0, 0, 1), 2.1), False)
sketch5.addGeometry(Part.Circle(Vector(125.7, 27.5, 0), Vector(0, 0, 1), 2.1), False)
sketch5.addGeometry(Part.Circle(Vector(125.7, 102.5, 0), Vector(0, 0, 1), 2.1), False)
sketch5.addGeometry(Part.Circle(Vector(75.7, 102.5, 0), Vector(0, 0, 1), 2.1), False)
sketch5.addGeometry(Part.Circle(Vector(70.5, -99.5, 0), Vector(0, 0, 1), 1.8), False)
sketch5.addGeometry(Part.Circle(Vector(143.5, -99.5, 0), Vector(0, 0, 1), 1.8), False)
sketch5.addGeometry(Part.Circle(Vector(143.5, -16.5, 0), Vector(0, 0, 1), 1.8), False)
sketch5.addGeometry(Part.Circle(Vector(70.5, -16.5, 0), Vector(0, 0, 1), 1.8), False)
sketch5.addConstraint(Sketcher.Constraint("Equal", 0, 1))
sketch5.addConstraint(Sketcher.Constraint("Equal", 1, 2))
sketch5.addConstraint(Sketcher.Constraint("Equal", 2, 3))
sketch5.addConstraint(Sketcher.Constraint("Equal", 3, 4))
sketch5.addConstraint(Sketcher.Constraint("Equal", 4, 5))
sketch5.addConstraint(Sketcher.Constraint("Equal", 5, 6))
sketch5.addConstraint(Sketcher.Constraint("Equal", 6, 7))
sketch5.addConstraint(Sketcher.Constraint("Equal", 7, 8))
sketch5.addConstraint(Sketcher.Constraint("Equal", 8, 9))
sketch5.addConstraint(Sketcher.Constraint("Equal", 9, 10))
sketch5.addConstraint(Sketcher.Constraint("Equal", 10, 11))
sketch5.addConstraint(Sketcher.Constraint("Equal", 11, 12))
sketch5.addConstraint(Sketcher.Constraint("Equal", 12, 13))
sketch5.addConstraint(Sketcher.Constraint("Equal", 13, 14))
sketch5.addConstraint(Sketcher.Constraint("Equal", 14, 15))
sketch5.addConstraint(Sketcher.Constraint("Equal", 16, 17))
sketch5.addConstraint(Sketcher.Constraint("Equal", 17, 18))
sketch5.addConstraint(Sketcher.Constraint("Equal", 18, 19))
sketch5.addConstraint(Sketcher.Constraint("Horizontal", 0, 3, 1, 3))
sketch5.addConstraint(Sketcher.Constraint("Horizontal", 1, 3, 2, 3))
sketch5.addConstraint(Sketcher.Constraint("Horizontal", 3, 3, 4, 3))
sketch5.addConstraint(Sketcher.Constraint("Horizontal", 4, 3, 5, 3))
sketch5.addConstraint(Sketcher.Constraint("Horizontal", 6, 3, 7, 3))
sketch5.addConstraint(Sketcher.Constraint("Horizontal", 7, 3, 8, 3))
sketch5.addConstraint(Sketcher.Constraint("Horizontal", 9, 3, 10, 3))
sketch5.addConstraint(Sketcher.Constraint("Horizontal", 10, 3, 11, 3))
sketch5.addConstraint(Sketcher.Constraint("Horizontal", 12, 3, 13, 3))
sketch5.addConstraint(Sketcher.Constraint("Horizontal", 14, 3, 15, 3))
sketch5.addConstraint(Sketcher.Constraint("Horizontal", 16, 3, 17, 3))
sketch5.addConstraint(Sketcher.Constraint("Horizontal", 18, 3, 19, 3))
sketch5.addConstraint(Sketcher.Constraint("Vertical", 2, 3, 3, 3))
sketch5.addConstraint(Sketcher.Constraint("Vertical", 1, 3, 4, 3))
sketch5.addConstraint(Sketcher.Constraint("Vertical", 0, 3, 5, 3))
sketch5.addConstraint(Sketcher.Constraint("Vertical", 8, 3, 9, 3))
sketch5.addConstraint(Sketcher.Constraint("Vertical", 7, 3, 10, 3))
sketch5.addConstraint(Sketcher.Constraint("Vertical", 6, 3, 11, 3))
sketch5.addConstraint(Sketcher.Constraint("Vertical", 13, 3, 14, 3))
sketch5.addConstraint(Sketcher.Constraint("Vertical", 12, 3, 15, 3))
sketch5.addConstraint(Sketcher.Constraint("Vertical", 17, 3, 18, 3))
sketch5.addConstraint(Sketcher.Constraint("Vertical", 16, 3, 19, 3))
sketch5.addConstraint(Sketcher.Constraint("Diameter", 0, 4.2))
sketch5.addConstraint(Sketcher.Constraint("Diameter", 16, 3.5))
sketch5.addConstraint(Sketcher.Constraint("DistanceY", -1, 1, 0, 3, 97.0))
sketch5.addConstraint(Sketcher.Constraint("DistanceY", -1, 1, 3, 3, 7.0))
sketch5.addConstraint(Sketcher.Constraint("DistanceY", 6, 3, -1, 1, 7.0))
sketch5.addConstraint(Sketcher.Constraint("DistanceY", 9, 3, -1, 1, 97.0))
sketch5.addConstraint(Sketcher.Constraint("DistanceX", 0, 3, 2, 3, 51.0))
sketch5.addConstraint(Sketcher.Constraint("DistanceX", 6, 3, 8, 3, 51.0))
sketch5.addConstraint(Sketcher.Constraint("DistanceX", 12, 3, 13, 3, 50.0))
sketch5.addConstraint(Sketcher.Constraint("DistanceY", 13, 3, 14, 3, 75.0))
sketch5.addConstraint(Sketcher.Constraint("DistanceY", 16, 3, 12, 3, 127.0))
sketch5.addConstraint(Sketcher.Constraint("DistanceX", 16, 3, 17, 3, 73.0))
sketch5.addConstraint(Sketcher.Constraint("DistanceY", 18, 3, 13, 3, 44.0))
sketch5.addConstraint(Sketcher.Constraint("DistanceX", 0, 3, -1, 1, 141.1))
sketch5.addConstraint(Sketcher.Constraint("DistanceX", 1, 3, -1, 1, 115.6))
sketch5.addConstraint(Sketcher.Constraint("DistanceX", 6, 3, -1, 1, 140.4))
sketch5.addConstraint(Sketcher.Constraint("DistanceX", 7, 3, -1, 1, 114.9))
sketch5.addConstraint(Sketcher.Constraint("DistanceX", -1, 1, 12, 3, 75.7))
sketch5.addConstraint(Sketcher.Constraint("DistanceY", -1, 1, 12, 3, 27.5))
sketch5.addConstraint(Sketcher.Constraint("DistanceX", -1, 1, 16, 3, 70.5))
pocket4 = body.newObject("PartDesign::Pocket", "Pocket003")
pocket4.Profile = sketch5
pocket4.Type = "ThroughAll"
pocket4.Reversed = True

# Sketch on XZ plane
sketch6 = body.newObject("Sketcher::SketchObject", "Sketch005")
sketch6.AttachmentSupport = (doc.getObject("XZ_Plane"), [""])
sketch6.MapMode = "FlatFace"
sketch6.addGeometry(Part.Circle(Vector(-63, 38, 0), Vector(0, 0, 1), 2), False)
sketch6.addGeometry(Part.Circle(Vector(47, 38, 0), Vector(0, 0, 1), 2), False)
sketch6.addGeometry(Part.Circle(Vector(47, -38, 0), Vector(0, 0, 1), 2), False)
sketch6.addGeometry(Part.Circle(Vector(-63, -38, 0), Vector(0, 0, 1), 2), False)
sketch6.addGeometry(Part.LineSegment(Vector(-78, 31, 0), Vector(-78, -31, 0)), False)
sketch6.addGeometry(Part.LineSegment(Vector(-78, -31, 0), Vector(62, -31, 0)), False)
sketch6.addGeometry(Part.LineSegment(Vector(62, -31, 0), Vector(62, 31, 0)), False)
sketch6.addGeometry(Part.LineSegment(Vector(62, 31, 0), Vector(-78, 31, 0)), False)
sketch6.addConstraint(Sketcher.Constraint("Coincident", 4, 2, 5, 1))
sketch6.addConstraint(Sketcher.Constraint("Coincident", 5, 2, 6, 1))
sketch6.addConstraint(Sketcher.Constraint("Coincident", 6, 2, 7, 1))
sketch6.addConstraint(Sketcher.Constraint("Coincident", 7, 2, 4, 1))
sketch6.addConstraint(Sketcher.Constraint("Vertical", 4))
sketch6.addConstraint(Sketcher.Constraint("Horizontal", 5))
sketch6.addConstraint(Sketcher.Constraint("Vertical", 6))
sketch6.addConstraint(Sketcher.Constraint("Horizontal", 7))
sketch6.addConstraint(Sketcher.Constraint("Equal", 0, 1))
sketch6.addConstraint(Sketcher.Constraint("Equal", 1, 2))
sketch6.addConstraint(Sketcher.Constraint("Equal", 2, 3))
sketch6.addConstraint(Sketcher.Constraint("Symmetric", 1, 3, 2, 3, -1))
sketch6.addConstraint(Sketcher.Constraint("Symmetric", 0, 3, 3, 3, -1))
sketch6.addConstraint(Sketcher.Constraint("Horizontal", 0, 3, 1, 3))
sketch6.addConstraint(Sketcher.Constraint("Diameter", 0, 4.0))
sketch6.addConstraint(Sketcher.Constraint("DistanceX", 5, 1, 5, 2, 140.0))
sketch6.addConstraint(Sketcher.Constraint("DistanceY", 4, 2, 4, 1, 62.0))
sketch6.addConstraint(Sketcher.Constraint("DistanceX", 0, 3, -1, 1, 63.0))
sketch6.addConstraint(Sketcher.Constraint("DistanceY", -1, 1, 0, 3, 38.0))
sketch6.addConstraint(Sketcher.Constraint("DistanceX", -1, 1, 1, 3, 47.0))
sketch6.addConstraint(Sketcher.Constraint("DistanceX", 4, 2, -1, 1, 78.0))
sketch6.addConstraint(Sketcher.Constraint("DistanceY", 4, 2, -1, 1, 31.0))
pocket5 = body.newObject("PartDesign::Pocket", "Pocket004")
pocket5.Profile = sketch6
pocket5.Type = "ThroughAll"

doc.recompute()
